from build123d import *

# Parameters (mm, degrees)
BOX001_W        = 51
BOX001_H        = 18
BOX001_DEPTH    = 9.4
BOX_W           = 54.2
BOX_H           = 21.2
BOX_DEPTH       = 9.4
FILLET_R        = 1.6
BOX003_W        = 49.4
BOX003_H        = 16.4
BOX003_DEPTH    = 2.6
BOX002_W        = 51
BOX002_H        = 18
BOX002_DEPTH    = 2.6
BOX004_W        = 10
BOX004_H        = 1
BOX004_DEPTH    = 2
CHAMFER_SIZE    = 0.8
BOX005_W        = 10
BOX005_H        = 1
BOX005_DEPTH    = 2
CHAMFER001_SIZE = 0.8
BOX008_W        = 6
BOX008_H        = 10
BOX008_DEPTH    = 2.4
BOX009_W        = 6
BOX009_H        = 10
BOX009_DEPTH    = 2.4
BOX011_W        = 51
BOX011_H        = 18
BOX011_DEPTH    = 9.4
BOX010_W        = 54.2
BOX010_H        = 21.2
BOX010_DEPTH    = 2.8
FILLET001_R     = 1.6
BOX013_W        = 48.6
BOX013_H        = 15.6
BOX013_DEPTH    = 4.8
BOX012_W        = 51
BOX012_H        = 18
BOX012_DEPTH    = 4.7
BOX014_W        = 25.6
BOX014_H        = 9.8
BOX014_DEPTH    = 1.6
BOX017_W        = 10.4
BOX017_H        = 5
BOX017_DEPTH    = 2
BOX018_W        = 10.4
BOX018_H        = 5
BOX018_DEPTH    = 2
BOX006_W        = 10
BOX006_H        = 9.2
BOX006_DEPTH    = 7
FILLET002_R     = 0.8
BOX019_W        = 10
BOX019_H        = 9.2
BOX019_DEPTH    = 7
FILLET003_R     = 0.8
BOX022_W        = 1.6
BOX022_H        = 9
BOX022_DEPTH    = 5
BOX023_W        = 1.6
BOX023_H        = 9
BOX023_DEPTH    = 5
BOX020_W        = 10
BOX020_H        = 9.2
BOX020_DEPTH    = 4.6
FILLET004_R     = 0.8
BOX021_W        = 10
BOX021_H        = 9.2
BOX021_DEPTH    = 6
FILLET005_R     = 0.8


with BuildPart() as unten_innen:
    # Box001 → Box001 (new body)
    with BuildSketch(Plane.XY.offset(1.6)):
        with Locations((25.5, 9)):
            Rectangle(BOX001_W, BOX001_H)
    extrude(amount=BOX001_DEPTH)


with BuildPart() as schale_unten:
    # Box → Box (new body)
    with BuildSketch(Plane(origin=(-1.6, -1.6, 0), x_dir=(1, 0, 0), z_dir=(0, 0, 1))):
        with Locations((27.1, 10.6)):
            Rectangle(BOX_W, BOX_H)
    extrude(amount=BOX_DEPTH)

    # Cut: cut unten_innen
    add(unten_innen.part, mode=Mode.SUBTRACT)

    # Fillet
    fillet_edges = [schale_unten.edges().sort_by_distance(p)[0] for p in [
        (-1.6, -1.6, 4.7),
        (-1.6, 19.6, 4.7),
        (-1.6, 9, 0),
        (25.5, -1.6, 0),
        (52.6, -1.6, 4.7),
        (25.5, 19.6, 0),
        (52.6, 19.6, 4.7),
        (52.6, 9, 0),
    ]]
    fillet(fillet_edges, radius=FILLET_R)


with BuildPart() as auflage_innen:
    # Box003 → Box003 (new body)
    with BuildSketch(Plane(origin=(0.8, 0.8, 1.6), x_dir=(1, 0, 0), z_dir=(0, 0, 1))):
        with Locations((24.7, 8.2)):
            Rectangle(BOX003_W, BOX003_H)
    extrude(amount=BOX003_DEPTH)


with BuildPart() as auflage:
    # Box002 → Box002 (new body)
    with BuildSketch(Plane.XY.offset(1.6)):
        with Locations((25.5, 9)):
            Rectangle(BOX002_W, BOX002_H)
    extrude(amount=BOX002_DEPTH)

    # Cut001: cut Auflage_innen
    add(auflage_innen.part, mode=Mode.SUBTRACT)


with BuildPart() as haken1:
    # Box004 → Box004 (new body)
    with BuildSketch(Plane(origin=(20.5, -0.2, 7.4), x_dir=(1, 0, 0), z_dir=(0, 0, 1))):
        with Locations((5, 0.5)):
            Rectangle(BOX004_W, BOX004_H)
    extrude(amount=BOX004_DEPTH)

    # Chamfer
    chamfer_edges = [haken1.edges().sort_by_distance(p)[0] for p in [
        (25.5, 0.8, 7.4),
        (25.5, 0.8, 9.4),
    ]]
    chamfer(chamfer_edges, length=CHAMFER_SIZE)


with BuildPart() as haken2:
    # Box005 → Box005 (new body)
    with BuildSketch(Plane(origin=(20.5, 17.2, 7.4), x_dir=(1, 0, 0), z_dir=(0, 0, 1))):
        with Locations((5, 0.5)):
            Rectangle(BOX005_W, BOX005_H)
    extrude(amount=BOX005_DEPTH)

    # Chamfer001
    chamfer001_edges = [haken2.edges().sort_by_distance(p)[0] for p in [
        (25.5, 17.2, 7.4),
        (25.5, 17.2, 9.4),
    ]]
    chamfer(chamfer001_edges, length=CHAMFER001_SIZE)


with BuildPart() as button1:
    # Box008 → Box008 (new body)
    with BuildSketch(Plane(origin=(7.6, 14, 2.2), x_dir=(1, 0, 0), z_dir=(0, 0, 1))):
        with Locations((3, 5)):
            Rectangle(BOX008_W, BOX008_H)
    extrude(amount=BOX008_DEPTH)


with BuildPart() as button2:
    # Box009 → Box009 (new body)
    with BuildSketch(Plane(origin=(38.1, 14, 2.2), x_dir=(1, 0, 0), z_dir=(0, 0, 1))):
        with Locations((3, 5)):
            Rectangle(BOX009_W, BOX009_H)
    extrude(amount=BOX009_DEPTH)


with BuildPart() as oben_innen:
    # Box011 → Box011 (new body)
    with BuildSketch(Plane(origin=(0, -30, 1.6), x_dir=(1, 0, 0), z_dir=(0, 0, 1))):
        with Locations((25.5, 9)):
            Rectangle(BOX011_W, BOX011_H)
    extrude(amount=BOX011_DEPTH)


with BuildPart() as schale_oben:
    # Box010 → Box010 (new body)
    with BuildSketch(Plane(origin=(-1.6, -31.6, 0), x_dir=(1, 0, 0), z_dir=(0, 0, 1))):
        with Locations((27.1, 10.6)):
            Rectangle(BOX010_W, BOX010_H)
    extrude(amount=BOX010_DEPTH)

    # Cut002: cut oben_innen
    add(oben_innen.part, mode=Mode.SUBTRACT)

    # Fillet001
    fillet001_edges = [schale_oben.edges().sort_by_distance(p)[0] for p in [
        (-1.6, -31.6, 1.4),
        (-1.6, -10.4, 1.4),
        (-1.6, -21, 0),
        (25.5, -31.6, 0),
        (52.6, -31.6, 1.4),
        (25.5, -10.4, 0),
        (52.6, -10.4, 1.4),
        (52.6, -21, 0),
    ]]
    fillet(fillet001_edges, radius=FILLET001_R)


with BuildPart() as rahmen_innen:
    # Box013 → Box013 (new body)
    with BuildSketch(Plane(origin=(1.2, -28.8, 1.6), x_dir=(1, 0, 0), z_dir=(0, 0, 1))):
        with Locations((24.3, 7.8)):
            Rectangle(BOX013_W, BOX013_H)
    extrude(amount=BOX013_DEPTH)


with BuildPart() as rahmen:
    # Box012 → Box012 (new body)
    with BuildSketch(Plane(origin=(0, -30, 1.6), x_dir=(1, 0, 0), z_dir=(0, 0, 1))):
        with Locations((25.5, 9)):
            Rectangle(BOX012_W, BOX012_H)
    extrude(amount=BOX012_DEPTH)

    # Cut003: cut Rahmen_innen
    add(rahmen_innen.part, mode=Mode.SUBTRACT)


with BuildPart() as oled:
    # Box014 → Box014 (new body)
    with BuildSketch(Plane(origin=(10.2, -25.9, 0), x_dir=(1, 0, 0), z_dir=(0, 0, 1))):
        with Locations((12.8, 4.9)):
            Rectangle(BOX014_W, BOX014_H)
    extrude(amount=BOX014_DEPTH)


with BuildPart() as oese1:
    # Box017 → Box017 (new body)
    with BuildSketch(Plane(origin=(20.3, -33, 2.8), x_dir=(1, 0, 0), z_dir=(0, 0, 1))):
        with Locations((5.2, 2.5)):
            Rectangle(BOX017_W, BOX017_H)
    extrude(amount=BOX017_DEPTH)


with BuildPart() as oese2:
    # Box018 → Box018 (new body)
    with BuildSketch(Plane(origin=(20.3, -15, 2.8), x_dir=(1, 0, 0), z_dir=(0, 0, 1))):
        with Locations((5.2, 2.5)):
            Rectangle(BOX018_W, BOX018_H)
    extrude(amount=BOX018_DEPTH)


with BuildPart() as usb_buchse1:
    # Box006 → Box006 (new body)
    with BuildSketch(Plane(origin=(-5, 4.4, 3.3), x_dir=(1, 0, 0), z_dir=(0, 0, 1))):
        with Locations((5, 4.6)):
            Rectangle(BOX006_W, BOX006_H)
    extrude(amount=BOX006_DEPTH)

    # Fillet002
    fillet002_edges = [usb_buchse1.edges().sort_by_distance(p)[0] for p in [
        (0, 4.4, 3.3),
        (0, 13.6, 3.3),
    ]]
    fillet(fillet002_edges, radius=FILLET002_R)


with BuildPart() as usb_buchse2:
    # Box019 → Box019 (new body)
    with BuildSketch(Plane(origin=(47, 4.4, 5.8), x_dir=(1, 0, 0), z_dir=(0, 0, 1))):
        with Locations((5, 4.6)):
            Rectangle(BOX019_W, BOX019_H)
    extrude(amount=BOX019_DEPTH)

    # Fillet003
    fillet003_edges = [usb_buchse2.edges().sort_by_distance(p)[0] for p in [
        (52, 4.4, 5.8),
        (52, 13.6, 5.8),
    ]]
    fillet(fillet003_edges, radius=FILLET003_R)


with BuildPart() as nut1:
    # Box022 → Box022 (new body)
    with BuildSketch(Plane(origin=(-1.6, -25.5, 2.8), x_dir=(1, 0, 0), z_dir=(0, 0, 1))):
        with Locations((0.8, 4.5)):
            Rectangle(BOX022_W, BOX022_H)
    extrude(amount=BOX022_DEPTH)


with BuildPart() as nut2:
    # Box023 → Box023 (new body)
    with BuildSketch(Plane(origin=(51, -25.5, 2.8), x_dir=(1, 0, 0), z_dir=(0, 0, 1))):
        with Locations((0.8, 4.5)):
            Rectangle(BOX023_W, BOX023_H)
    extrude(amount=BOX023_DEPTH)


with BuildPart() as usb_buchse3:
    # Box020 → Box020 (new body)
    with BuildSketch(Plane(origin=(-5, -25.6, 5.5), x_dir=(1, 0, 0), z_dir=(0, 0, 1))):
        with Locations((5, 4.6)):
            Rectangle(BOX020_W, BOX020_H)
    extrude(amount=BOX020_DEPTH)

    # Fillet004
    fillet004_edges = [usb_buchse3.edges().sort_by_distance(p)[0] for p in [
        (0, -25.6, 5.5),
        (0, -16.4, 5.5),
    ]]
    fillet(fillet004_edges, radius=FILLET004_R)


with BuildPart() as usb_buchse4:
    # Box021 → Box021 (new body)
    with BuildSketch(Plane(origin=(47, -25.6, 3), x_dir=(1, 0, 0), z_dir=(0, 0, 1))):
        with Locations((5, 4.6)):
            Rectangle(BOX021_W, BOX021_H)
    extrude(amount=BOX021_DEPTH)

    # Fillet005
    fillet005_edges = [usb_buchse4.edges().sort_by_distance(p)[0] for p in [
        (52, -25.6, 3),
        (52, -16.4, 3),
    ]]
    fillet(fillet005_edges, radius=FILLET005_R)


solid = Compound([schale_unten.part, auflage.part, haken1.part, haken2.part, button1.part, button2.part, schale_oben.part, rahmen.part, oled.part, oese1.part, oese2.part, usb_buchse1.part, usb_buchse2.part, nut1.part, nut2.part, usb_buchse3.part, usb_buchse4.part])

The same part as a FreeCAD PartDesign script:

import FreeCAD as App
import Part
import Sketcher


def edges_at(feature, points):
    """Names of the edges that pass closest to the given points."""
    edges = feature.Shape.Edges
    near = lambda p: min(range(len(edges)), key=lambda i: edges[i].distToShape(Part.Vertex(*p))[0])
    return sorted({f"Edge{near(p) + 1}" for p in points})


def add_polygon(sketch, points):
    """Adds a closed chain of lines whose ends are joined by coincident constraints."""
    first, n = sketch.GeometryCount, len(points)
    for a, b in zip(points, points[1:] + points[:1]):
        sketch.addGeometry(Part.LineSegment(App.Vector(*a, 0), App.Vector(*b, 0)), False)
    for i in range(n):
        sketch.addConstraint(Sketcher.Constraint("Coincident", first + i, 2, first + (i + 1) % n, 1))

doc = App.newDocument("Part")
body = doc.addObject("PartDesign::Body", "Body")

# Sketch on XY plane
sketch1 = body.newObject("Sketcher::SketchObject", "Sketch")
sketch1.AttachmentSupport = (doc.getObject("XY_Plane"), [""])
sketch1.MapMode = "FlatFace"
sketch1.AttachmentOffset = App.Placement(App.Vector(0, 0, 1.6), App.Rotation())
add_polygon(sketch1, [(0, 18), (0, 0), (51, 0), (51, 18)])  # lines 0-3
sketch1.addConstraint([
    Sketcher.Constraint("Vertical", 0),
    Sketcher.Constraint("Horizontal", 1),
    Sketcher.Constraint("Vertical", 2),
    Sketcher.Constraint("Horizontal", 3),
    Sketcher.Constraint("Coincident", 0, 2, -1, 1),
    Sketcher.Constraint("DistanceX", 1, 1, 1, 2, 51.0),
    Sketcher.Constraint("DistanceY", 0, 2, 0, 1, 18.0),
])
pad1 = body.newObject("PartDesign::Pad", "Pad")
pad1.Profile = sketch1
pad1.Length = 9.4
body2 = doc.addObject("PartDesign::Body", "Body001")

# Sketch on XY plane
sketch2 = body2.newObject("Sketcher::SketchObject", "Sketch001")
sketch2.AttachmentSupport = (doc.getObject("XY_Plane001"), [""])
sketch2.MapMode = "FlatFace"
add_polygon(sketch2, [(-2, 20), (-2, -2), (53, -2), (53, 20)])  # lines 0-3
sketch2.addConstraint([
    Sketcher.Constraint("Vertical", 0),
    Sketcher.Constraint("Horizontal", 1),
    Sketcher.Constraint("Vertical", 2),
    Sketcher.Constraint("Horizontal", 3),
    Sketcher.Constraint("DistanceX", 1, 1, 1, 2, 54.2),
    Sketcher.Constraint("DistanceY", 0, 2, 0, 1, 21.2),
    Sketcher.Constraint("DistanceX", 0, 2, -1, 1, 1.6),
    Sketcher.Constraint("DistanceY", 0, 2, -1, 1, 1.6),
])
pad2 = body2.newObject("PartDesign::Pad", "Pad001")
pad2.Profile = sketch2
pad2.Length = 9.4
doc.recompute()

boolean = body2.newObject("PartDesign::Boolean", "Boolean")
boolean.Type = "Cut"
boolean.addObjects([body])
doc.recompute()

fillet = body2.newObject("PartDesign::Fillet", "Fillet")
fillet.Base = (boolean, edges_at(boolean, [
    (-1.6, -1.6, 4.7),
    (-1.6, 19.6, 4.7),
    (-1.6, 9, 0),
    (25.5, -1.6, 0),
    (52.6, -1.6, 4.7),
    (25.5, 19.6, 0),
    (52.6, 19.6, 4.7),
    (52.6, 9, 0),
]))
fillet.Radius = 1.6
body3 = doc.addObject("PartDesign::Body", "Body002")

# Sketch on XY plane
sketch3 = body3.newObject("Sketcher::SketchObject", "Sketch002")
sketch3.AttachmentSupport = (doc.getObject("XY_Plane002"), [""])
sketch3.MapMode = "FlatFace"
sketch3.AttachmentOffset = App.Placement(App.Vector(0, 0, 1.6), App.Rotation())
add_polygon(sketch3, [(1, 17), (1, 1), (50, 1), (50, 17)])  # lines 0-3
sketch3.addConstraint([
    Sketcher.Constraint("Vertical", 0),
    Sketcher.Constraint("Horizontal", 1),
    Sketcher.Constraint("Vertical", 2),
    Sketcher.Constraint("Horizontal", 3),
    Sketcher.Constraint("DistanceX", 1, 1, 1, 2, 49.4),
    Sketcher.Constraint("DistanceY", 0, 2, 0, 1, 16.4),
    Sketcher.Constraint("DistanceX", -1, 1, 0, 2, 0.8),
    Sketcher.Constraint("DistanceY", -1, 1, 0, 2, 0.8),
])
pad3 = body3.newObject("PartDesign::Pad", "Pad002")
pad3.Profile = sketch3
pad3.Length = 2.6
body4 = doc.addObject("PartDesign::Body", "Body003")

# Sketch on XY plane
sketch4 = body4.newObject("Sketcher::SketchObject", "Sketch003")
sketch4.AttachmentSupport = (doc.getObject("XY_Plane003"), [""])
sketch4.MapMode = "FlatFace"
sketch4.AttachmentOffset = App.Placement(App.Vector(0, 0, 1.6), App.Rotation())
add_polygon(sketch4, [(0, 18), (0, 0), (51, 0), (51, 18)])  # lines 0-3
sketch4.addConstraint([
    Sketcher.Constraint("Vertical", 0),
    Sketcher.Constraint("Horizontal", 1),
    Sketcher.Constraint("Vertical", 2),
    Sketcher.Constraint("Horizontal", 3),
    Sketcher.Constraint("Coincident", 0, 2, -1, 1),
    Sketcher.Constraint("DistanceX", 1, 1, 1, 2, 51.0),
    Sketcher.Constraint("DistanceY", 0, 2, 0, 1, 18.0),
])
pad4 = body4.newObject("PartDesign::Pad", "Pad003")
pad4.Profile = sketch4
pad4.Length = 2.6
doc.recompute()

boolean2 = body4.newObject("PartDesign::Boolean", "Boolean001")
boolean2.Type = "Cut"
boolean2.addObjects([body3])
body5 = doc.addObject("PartDesign::Body", "Body004")

# Sketch on XY plane
sketch5 = body5.newObject("Sketcher::SketchObject", "Sketch004")
sketch5.AttachmentSupport = (doc.getObject("XY_Plane004"), [""])
sketch5.MapMode = "FlatFace"
sketch5.AttachmentOffset = App.Placement(App.Vector(0, 0, 7.4), App.Rotation())
add_polygon(sketch5, [(20.5, 0.8), (20.5, -0.2), (30.5, -0.2), (30.5, 0.8)])  # lines 0-3
sketch5.addConstraint([
    Sketcher.Constraint("Vertical", 0),
    Sketcher.Constraint("Horizontal", 1),
    Sketcher.Constraint("Vertical", 2),
    Sketcher.Constraint("Horizontal", 3),
    Sketcher.Constraint("DistanceX", 1, 1, 1, 2, 10.0),
    Sketcher.Constraint("DistanceY", 0, 2, 0, 1, 1.0),
    Sketcher.Constraint("DistanceX", -1, 1, 0, 2, 20.5),
    Sketcher.Constraint("DistanceY", 0, 2, -1, 1, 0.2),
])
pad5 = body5.newObject("PartDesign::Pad", "Pad004")
pad5.Profile = sketch5
pad5.Length = 2
doc.recompute()

chamfer = body5.newObject("PartDesign::Chamfer", "Chamfer")
chamfer.Base = (pad5, edges_at(pad5, [(25.5, 0.8, 7.4), (25.5, 0.8, 9.4)]))
chamfer.Size = 0.8
body6 = doc.addObject("PartDesign::Body", "Body005")

# Sketch on XY plane
sketch6 = body6.newObject("Sketcher::SketchObject", "Sketch005")
sketch6.AttachmentSupport = (doc.getObject("XY_Plane005"), [""])
sketch6.MapMode = "FlatFace"
sketch6.AttachmentOffset = App.Placement(App.Vector(0, 0, 7.4), App.Rotation())
add_polygon(sketch6, [(20.5, 18.2), (20.5, 17.2), (30.5, 17.2), (30.5, 18.2)])  # lines 0-3
sketch6.addConstraint([
    Sketcher.Constraint("Vertical", 0),
    Sketcher.Constraint("Horizontal", 1),
    Sketcher.Constraint("Vertical", 2),
    Sketcher.Constraint("Horizontal", 3),
    Sketcher.Constraint("DistanceX", 1, 1, 1, 2, 10.0),
    Sketcher.Constraint("DistanceY", 0, 2, 0, 1, 1.0),
    Sketcher.Constraint("DistanceX", -1, 1, 0, 2, 20.5),
    Sketcher.Constraint("DistanceY", -1, 1, 0, 2, 17.2),
])
pad6 = body6.newObject("PartDesign::Pad", "Pad005")
pad6.Profile = sketch6
pad6.Length = 2
doc.recompute()

chamfer2 = body6.newObject("PartDesign::Chamfer", "Chamfer001")
chamfer2.Base = (pad6, edges_at(pad6, [(25.5, 17.2, 7.4), (25.5, 17.2, 9.4)]))
chamfer2.Size = 0.8
body7 = doc.addObject("PartDesign::Body", "Body006")

# Sketch on XY plane
sketch7 = body7.newObject("Sketcher::SketchObject", "Sketch006")
sketch7.AttachmentSupport = (doc.getObject("XY_Plane006"), [""])
sketch7.MapMode = "FlatFace"
sketch7.AttachmentOffset = App.Placement(App.Vector(0, 0, 2.2), App.Rotation())
add_polygon(sketch7, [(8, 24), (8, 14), (14, 14), (14, 24)])  # lines 0-3
sketch7.addConstraint([
    Sketcher.Constraint("Vertical", 0),
    Sketcher.Constraint("Horizontal", 1),
    Sketcher.Constraint("Vertical", 2),
    Sketcher.Constraint("Horizontal", 3),
    Sketcher.Constraint("DistanceX", 1, 1, 1, 2, 6.0),
    Sketcher.Constraint("DistanceY", 0, 2, 0, 1, 10.0),
    Sketcher.Constraint("DistanceY", -1, 1, 0, 2, 14.0),
    Sketcher.Constraint("DistanceX", -1, 1, 0, 2, 7.6),
])
pad7 = body7.newObject("PartDesign::Pad", "Pad006")
pad7.Profile = sketch7
pad7.Length = 2.4
body8 = doc.addObject("PartDesign::Body", "Body007")

# Sketch on XY plane
sketch8 = body8.newObject("Sketcher::SketchObject", "Sketch007")
sketch8.AttachmentSupport = (doc.getObject("XY_Plane007"), [""])
sketch8.MapMode = "FlatFace"
sketch8.AttachmentOffset = App.Placement(App.Vector(0, 0, 2.2), App.Rotation())
add_polygon(sketch8, [(38, 24), (38, 14), (44, 14), (44, 24)])  # lines 0-3
sketch8.addConstraint([
    Sketcher.Constraint("Vertical", 0),
    Sketcher.Constraint("Horizontal", 1),
    Sketcher.Constraint("Vertical", 2),
    Sketcher.Constraint("Horizontal", 3),
    Sketcher.Constraint("DistanceX", 1, 1, 1, 2, 6.0),
    Sketcher.Constraint("DistanceY", 0, 2, 0, 1, 10.0),
    Sketcher.Constraint("DistanceY", -1, 1, 0, 2, 14.0),
    Sketcher.Constraint("DistanceX", -1, 1, 0, 2, 38.1),
])
pad8 = body8.newObject("PartDesign::Pad", "Pad007")
pad8.Profile = sketch8
pad8.Length = 2.4
body9 = doc.addObject("PartDesign::Body", "Body008")

# Sketch on XY plane
sketch9 = body9.newObject("Sketcher::SketchObject", "Sketch008")
sketch9.AttachmentSupport = (doc.getObject("XY_Plane008"), [""])
sketch9.MapMode = "FlatFace"
sketch9.AttachmentOffset = App.Placement(App.Vector(0, 0, 1.6), App.Rotation())
add_polygon(sketch9, [(0, -12), (0, -30), (51, -30), (51, -12)])  # lines 0-3
sketch9.addConstraint([
    Sketcher.Constraint("Vertical", 0),
    Sketcher.Constraint("Horizontal", 1),
    Sketcher.Constraint("Vertical", 2),
    Sketcher.Constraint("Horizontal", 3),
    Sketcher.Constraint("PointOnObject", 0, 2, -2),
    Sketcher.Constraint("DistanceX", 1, 1, 1, 2, 51.0),
    Sketcher.Constraint("DistanceY", 0, 2, 0, 1, 18.0),
    Sketcher.Constraint("DistanceY", 0, 2, -1, 1, 30.0),
])
pad9 = body9.newObject("PartDesign::Pad", "Pad008")
pad9.Profile = sketch9
pad9.Length = 9.4
body10 = doc.addObject("PartDesign::Body", "Body009")

# Sketch on XY plane
sketch10 = body10.newObject("Sketcher::SketchObject", "Sketch009")
sketch10.AttachmentSupport = (doc.getObject("XY_Plane009"), [""])
sketch10.MapMode = "FlatFace"
add_polygon(sketch10, [(-2, -10), (-2, -32), (53, -32), (53, -10)])  # lines 0-3
sketch10.addConstraint([
    Sketcher.Constraint("Vertical", 0),
    Sketcher.Constraint("Horizontal", 1),
    Sketcher.Constraint("Vertical", 2),
    Sketcher.Constraint("Horizontal", 3),
    Sketcher.Constraint("DistanceX", 1, 1, 1, 2, 54.2),
    Sketcher.Constraint("DistanceY", 0, 2, 0, 1, 21.2),
    Sketcher.Constraint("DistanceX", 0, 2, -1, 1, 1.6),
    Sketcher.Constraint("DistanceY", 0, 2, -1, 1, 31.6),
])
pad10 = body10.newObject("PartDesign::Pad", "Pad009")
pad10.Profile = sketch10
pad10.Length = 2.8
doc.recompute()

boolean3 = body10.newObject("PartDesign::Boolean", "Boolean002")
boolean3.Type = "Cut"
boolean3.addObjects([body9])
doc.recompute()

fillet2 = body10.newObject("PartDesign::Fillet", "Fillet001")
fillet2.Base = (boolean3, edges_at(boolean3, [
    (-1.6, -31.6, 1.4),
    (-1.6, -10.4, 1.4),
    (-1.6, -21, 0),
    (25.5, -31.6, 0),
    (52.6, -31.6, 1.4),
    (25.5, -10.4, 0),
    (52.6, -10.4, 1.4),
    (52.6, -21, 0),
]))
fillet2.Radius = 1.6
body11 = doc.addObject("PartDesign::Body", "Body010")

# Sketch on XY plane
sketch11 = body11.newObject("Sketcher::SketchObject", "Sketch010")
sketch11.AttachmentSupport = (doc.getObject("XY_Plane010"), [""])
sketch11.MapMode = "FlatFace"
sketch11.AttachmentOffset = App.Placement(App.Vector(0, 0, 1.6), App.Rotation())
add_polygon(sketch11, [(1, -13), (1, -29), (50, -29), (50, -13)])  # lines 0-3
sketch11.addConstraint([
    Sketcher.Constraint("Vertical", 0),
    Sketcher.Constraint("Horizontal", 1),
    Sketcher.Constraint("Vertical", 2),
    Sketcher.Constraint("Horizontal", 3),
    Sketcher.Constraint("DistanceX", 1, 1, 1, 2, 48.6),
    Sketcher.Constraint("DistanceY", 0, 2, 0, 1, 15.6),
    Sketcher.Constraint("DistanceX", -1, 1, 0, 2, 1.2),
    Sketcher.Constraint("DistanceY", 0, 2, -1, 1, 28.8),
])
pad11 = body11.newObject("PartDesign::Pad", "Pad010")
pad11.Profile = sketch11
pad11.Length = 4.8
body12 = doc.addObject("PartDesign::Body", "Body011")

# Sketch on XY plane
sketch12 = body12.newObject("Sketcher::SketchObject", "Sketch011")
sketch12.AttachmentSupport = (doc.getObject("XY_Plane011"), [""])
sketch12.MapMode = "FlatFace"
sketch12.AttachmentOffset = App.Placement(App.Vector(0, 0, 1.6), App.Rotation())
add_polygon(sketch12, [(0, -12), (0, -30), (51, -30), (51, -12)])  # lines 0-3
sketch12.addConstraint([
    Sketcher.Constraint("Vertical", 0),
    Sketcher.Constraint("Horizontal", 1),
    Sketcher.Constraint("Vertical", 2),
    Sketcher.Constraint("Horizontal", 3),
    Sketcher.Constraint("PointOnObject", 0, 2, -2),
    Sketcher.Constraint("DistanceX", 1, 1, 1, 2, 51.0),
    Sketcher.Constraint("DistanceY", 0, 2, 0, 1, 18.0),
    Sketcher.Constraint("DistanceY", 0, 2, -1, 1, 30.0),
])
pad12 = body12.newObject("PartDesign::Pad", "Pad011")
pad12.Profile = sketch12
pad12.Length = 4.7
doc.recompute()

boolean4 = body12.newObject("PartDesign::Boolean", "Boolean003")
boolean4.Type = "Cut"
boolean4.addObjects([body11])
body13 = doc.addObject("PartDesign::Body", "Body012")

# Sketch on XY plane
sketch13 = body13.newObject("Sketcher::SketchObject", "Sketch012")
sketch13.AttachmentSupport = (doc.getObject("XY_Plane012"), [""])
sketch13.MapMode = "FlatFace"
add_polygon(sketch13, [(10, -16), (10, -26), (36, -26), (36, -16)])  # lines 0-3
sketch13.addConstraint([
    Sketcher.Constraint("Vertical", 0),
    Sketcher.Constraint("Horizontal", 1),
    Sketcher.Constraint("Vertical", 2),
    Sketcher.Constraint("Horizontal", 3),
    Sketcher.Constraint("DistanceX", 1, 1, 1, 2, 25.6),
    Sketcher.Constraint("DistanceY", 0, 2, 0, 1, 9.8),
    Sketcher.Constraint("DistanceX", -1, 1, 0, 2, 10.2),
    Sketcher.Constraint("DistanceY", 0, 2, -1, 1, 25.9),
])
pad13 = body13.newObject("PartDesign::Pad", "Pad012")
pad13.Profile = sketch13
pad13.Length = 1.6
body14 = doc.addObject("PartDesign::Body", "Body013")

# Sketch on XY plane
sketch14 = body14.newObject("Sketcher::SketchObject", "Sketch013")
sketch14.AttachmentSupport = (doc.getObject("XY_Plane013"), [""])
sketch14.MapMode = "FlatFace"
sketch14.AttachmentOffset = App.Placement(App.Vector(0, 0, 2.8), App.Rotation())
add_polygon(sketch14, [(20, -28), (20, -33), (31, -33), (31, -28)])  # lines 0-3
sketch14.addConstraint([
    Sketcher.Constraint("Vertical", 0),
    Sketcher.Constraint("Horizontal", 1),
    Sketcher.Constraint("Vertical", 2),
    Sketcher.Constraint("Horizontal", 3),
    Sketcher.Constraint("DistanceY", 0, 2, 0, 1, 5.0),
    Sketcher.Constraint("DistanceX", 1, 1, 1, 2, 10.4),
    Sketcher.Constraint("DistanceY", 0, 2, -1, 1, 33.0),
    Sketcher.Constraint("DistanceX", -1, 1, 0, 2, 20.3),
])
pad14 = body14.newObject("PartDesign::Pad", "Pad013")
pad14.Profile = sketch14
pad14.Length = 2
body15 = doc.addObject("PartDesign::Body", "Body014")

# Sketch on XY plane
sketch15 = body15.newObject("Sketcher::SketchObject", "Sketch014")
sketch15.AttachmentSupport = (doc.getObject("XY_Plane014"), [""])
sketch15.MapMode = "FlatFace"
sketch15.AttachmentOffset = App.Placement(App.Vector(0, 0, 2.8), App.Rotation())
add_polygon(sketch15, [(20, -10), (20, -15), (31, -15), (31, -10)])  # lines 0-3
sketch15.addConstraint([
    Sketcher.Constraint("Vertical", 0),
    Sketcher.Constraint("Horizontal", 1),
    Sketcher.Constraint("Vertical", 2),
    Sketcher.Constraint("Horizontal", 3),
    Sketcher.Constraint("DistanceY", 0, 2, 0, 1, 5.0),
    Sketcher.Constraint("DistanceX", 1, 1, 1, 2, 10.4),
    Sketcher.Constraint("DistanceY", 0, 2, -1, 1, 15.0),
    Sketcher.Constraint("DistanceX", -1, 1, 0, 2, 20.3),
])
pad15 = body15.newObject("PartDesign::Pad", "Pad014")
pad15.Profile = sketch15
pad15.Length = 2
body16 = doc.addObject("PartDesign::Body", "Body015")

# Sketch on XY plane
sketch16 = body16.newObject("Sketcher::SketchObject", "Sketch015")
sketch16.AttachmentSupport = (doc.getObject("XY_Plane015"), [""])
sketch16.MapMode = "FlatFace"
sketch16.AttachmentOffset = App.Placement(App.Vector(0, 0, 3.3), App.Rotation())
add_polygon(sketch16, [(-5, 14), (-5, 4), (5, 4), (5, 14)])  # lines 0-3
sketch16.addConstraint([
    Sketcher.Constraint("Vertical", 0),
    Sketcher.Constraint("Horizontal", 1),
    Sketcher.Constraint("Vertical", 2),
    Sketcher.Constraint("Horizontal", 3),
    Sketcher.Constraint("DistanceX", 1, 1, 1, 2, 10.0),
    Sketcher.Constraint("DistanceY", 0, 2, 0, 1, 9.2),
    Sketcher.Constraint("DistanceX", 0, 2, -1, 1, 5.0),
    Sketcher.Constraint("DistanceY", -1, 1, 0, 2, 4.4),
])
pad16 = body16.newObject("PartDesign::Pad", "Pad015")
pad16.Profile = sketch16
pad16.Length = 7
doc.recompute()

fillet3 = body16.newObject("PartDesign::Fillet", "Fillet002")
fillet3.Base = (pad16, edges_at(pad16, [(0, 4.4, 3.3), (0, 13.6, 3.3)]))
fillet3.Radius = 0.8
body17 = doc.addObject("PartDesign::Body", "Body016")

# Sketch on XY plane
sketch17 = body17.newObject("Sketcher::SketchObject", "Sketch016")
sketch17.AttachmentSupport = (doc.getObject("XY_Plane016"), [""])
sketch17.MapMode = "FlatFace"
sketch17.AttachmentOffset = App.Placement(App.Vector(0, 0, 5.8), App.Rotation())
add_polygon(sketch17, [(47, 14), (47, 4), (57, 4), (57, 14)])  # lines 0-3
sketch17.addConstraint([
    Sketcher.Constraint("Vertical", 0),
    Sketcher.Constraint("Horizontal", 1),
    Sketcher.Constraint("Vertical", 2),
    Sketcher.Constraint("Horizontal", 3),
    Sketcher.Constraint("DistanceX", 1, 1, 1, 2, 10.0),
    Sketcher.Constraint("DistanceY", 0, 2, 0, 1, 9.2),
    Sketcher.Constraint("DistanceX", -1, 1, 0, 2, 47.0),
    Sketcher.Constraint("DistanceY", -1, 1, 0, 2, 4.4),
])
pad17 = body17.newObject("PartDesign::Pad", "Pad016")
pad17.Profile = sketch17
pad17.Length = 7
doc.recompute()

fillet4 = body17.newObject("PartDesign::Fillet", "Fillet003")
fillet4.Base = (pad17, edges_at(pad17, [(52, 4.4, 5.8), (52, 13.6, 5.8)]))
fillet4.Radius = 0.8
body18 = doc.addObject("PartDesign::Body", "Body017")

# Sketch on XY plane
sketch18 = body18.newObject("Sketcher::SketchObject", "Sketch017")
sketch18.AttachmentSupport = (doc.getObject("XY_Plane017"), [""])
sketch18.MapMode = "FlatFace"
sketch18.AttachmentOffset = App.Placement(App.Vector(0, 0, 2.8), App.Rotation())
add_polygon(sketch18, [(-1.6, -16.5), (-1.6, -25.5), (0, -25.5), (0, -16.5)])  # lines 0-3
sketch18.addConstraint([
    Sketcher.Constraint("Vertical", 0),
    Sketcher.Constraint("Horizontal", 1),
    Sketcher.Constraint("Vertical", 2),
    Sketcher.Constraint("Horizontal", 3),
    Sketcher.Constraint("PointOnObject", 1, 2, -2),
    Sketcher.Constraint("DistanceY", 0, 2, 0, 1, 9.0),
    Sketcher.Constraint("DistanceX", 1, 1, 1, 2, 1.6),
    Sketcher.Constraint("DistanceY", 0, 2, -1, 1, 25.5),
])
pad18 = body18.newObject("PartDesign::Pad", "Pad017")
pad18.Profile = sketch18
pad18.Length = 5
body19 = doc.addObject("PartDesign::Body", "Body018")

# Sketch on XY plane
sketch19 = body19.newObject("Sketcher::SketchObject", "Sketch018")
sketch19.AttachmentSupport = (doc.getObject("XY_Plane018"), [""])
sketch19.MapMode = "FlatFace"
sketch19.AttachmentOffset = App.Placement(App.Vector(0, 0, 2.8), App.Rotation())
add_polygon(sketch19, [(51, -16.5), (51, -25.5), (52.6, -25.5), (52.6, -16.5)])  # lines 0-3
sketch19.addConstraint([
    Sketcher.Constraint("Vertical", 0),
    Sketcher.Constraint("Horizontal", 1),
    Sketcher.Constraint("Vertical", 2),
    Sketcher.Constraint("Horizontal", 3),
    Sketcher.Constraint("DistanceY", 0, 2, 0, 1, 9.0),
    Sketcher.Constraint("DistanceX", 1, 1, 1, 2, 1.6),
    Sketcher.Constraint("DistanceX", -1, 1, 0, 2, 51.0),
    Sketcher.Constraint("DistanceY", 0, 2, -1, 1, 25.5),
])
pad19 = body19.newObject("PartDesign::Pad", "Pad018")
pad19.Profile = sketch19
pad19.Length = 5
body20 = doc.addObject("PartDesign::Body", "Body019")

# Sketch on XY plane
sketch20 = body20.newObject("Sketcher::SketchObject", "Sketch019")
sketch20.AttachmentSupport = (doc.getObject("XY_Plane019"), [""])
sketch20.MapMode = "FlatFace"
sketch20.AttachmentOffset = App.Placement(App.Vector(0, 0, 5.5), App.Rotation())
add_polygon(sketch20, [(-5, -16), (-5, -26), (5, -26), (5, -16)])  # lines 0-3
sketch20.addConstraint([
    Sketcher.Constraint("Vertical", 0),
    Sketcher.Constraint("Horizontal", 1),
    Sketcher.Constraint("Vertical", 2),
    Sketcher.Constraint("Horizontal", 3),
    Sketcher.Constraint("DistanceX", 1, 1, 1, 2, 10.0),
    Sketcher.Constraint("DistanceY", 0, 2, 0, 1, 9.2),
    Sketcher.Constraint("DistanceX", 0, 2, -1, 1, 5.0),
    Sketcher.Constraint("DistanceY", 0, 2, -1, 1, 25.6),
])
pad20 = body20.newObject("PartDesign::Pad", "Pad019")
pad20.Profile = sketch20
pad20.Length = 4.6
doc.recompute()

fillet5 = body20.newObject("PartDesign::Fillet", "Fillet004")
fillet5.Base = (pad20, edges_at(pad20, [(0, -25.6, 5.5), (0, -16.4, 5.5)]))
fillet5.Radius = 0.8
body21 = doc.addObject("PartDesign::Body", "Body020")

# Sketch on XY plane
sketch21 = body21.newObject("Sketcher::SketchObject", "Sketch020")
sketch21.AttachmentSupport = (doc.getObject("XY_Plane020"), [""])
sketch21.MapMode = "FlatFace"
sketch21.AttachmentOffset = App.Placement(App.Vector(0, 0, 3), App.Rotation())
add_polygon(sketch21, [(47, -16), (47, -26), (57, -26), (57, -16)])  # lines 0-3
sketch21.addConstraint([
    Sketcher.Constraint("Vertical", 0),
    Sketcher.Constraint("Horizontal", 1),
    Sketcher.Constraint("Vertical", 2),
    Sketcher.Constraint("Horizontal", 3),
    Sketcher.Constraint("DistanceX", 1, 1, 1, 2, 10.0),
    Sketcher.Constraint("DistanceY", 0, 2, 0, 1, 9.2),
    Sketcher.Constraint("DistanceX", -1, 1, 0, 2, 47.0),
    Sketcher.Constraint("DistanceY", 0, 2, -1, 1, 25.6),
])
pad21 = body21.newObject("PartDesign::Pad", "Pad020")
pad21.Profile = sketch21
pad21.Length = 6
doc.recompute()

fillet6 = body21.newObject("PartDesign::Fillet", "Fillet005")
fillet6.Base = (pad21, edges_at(pad21, [(52, -25.6, 3), (52, -16.4, 3)]))
fillet6.Radius = 0.8

doc.recompute()
